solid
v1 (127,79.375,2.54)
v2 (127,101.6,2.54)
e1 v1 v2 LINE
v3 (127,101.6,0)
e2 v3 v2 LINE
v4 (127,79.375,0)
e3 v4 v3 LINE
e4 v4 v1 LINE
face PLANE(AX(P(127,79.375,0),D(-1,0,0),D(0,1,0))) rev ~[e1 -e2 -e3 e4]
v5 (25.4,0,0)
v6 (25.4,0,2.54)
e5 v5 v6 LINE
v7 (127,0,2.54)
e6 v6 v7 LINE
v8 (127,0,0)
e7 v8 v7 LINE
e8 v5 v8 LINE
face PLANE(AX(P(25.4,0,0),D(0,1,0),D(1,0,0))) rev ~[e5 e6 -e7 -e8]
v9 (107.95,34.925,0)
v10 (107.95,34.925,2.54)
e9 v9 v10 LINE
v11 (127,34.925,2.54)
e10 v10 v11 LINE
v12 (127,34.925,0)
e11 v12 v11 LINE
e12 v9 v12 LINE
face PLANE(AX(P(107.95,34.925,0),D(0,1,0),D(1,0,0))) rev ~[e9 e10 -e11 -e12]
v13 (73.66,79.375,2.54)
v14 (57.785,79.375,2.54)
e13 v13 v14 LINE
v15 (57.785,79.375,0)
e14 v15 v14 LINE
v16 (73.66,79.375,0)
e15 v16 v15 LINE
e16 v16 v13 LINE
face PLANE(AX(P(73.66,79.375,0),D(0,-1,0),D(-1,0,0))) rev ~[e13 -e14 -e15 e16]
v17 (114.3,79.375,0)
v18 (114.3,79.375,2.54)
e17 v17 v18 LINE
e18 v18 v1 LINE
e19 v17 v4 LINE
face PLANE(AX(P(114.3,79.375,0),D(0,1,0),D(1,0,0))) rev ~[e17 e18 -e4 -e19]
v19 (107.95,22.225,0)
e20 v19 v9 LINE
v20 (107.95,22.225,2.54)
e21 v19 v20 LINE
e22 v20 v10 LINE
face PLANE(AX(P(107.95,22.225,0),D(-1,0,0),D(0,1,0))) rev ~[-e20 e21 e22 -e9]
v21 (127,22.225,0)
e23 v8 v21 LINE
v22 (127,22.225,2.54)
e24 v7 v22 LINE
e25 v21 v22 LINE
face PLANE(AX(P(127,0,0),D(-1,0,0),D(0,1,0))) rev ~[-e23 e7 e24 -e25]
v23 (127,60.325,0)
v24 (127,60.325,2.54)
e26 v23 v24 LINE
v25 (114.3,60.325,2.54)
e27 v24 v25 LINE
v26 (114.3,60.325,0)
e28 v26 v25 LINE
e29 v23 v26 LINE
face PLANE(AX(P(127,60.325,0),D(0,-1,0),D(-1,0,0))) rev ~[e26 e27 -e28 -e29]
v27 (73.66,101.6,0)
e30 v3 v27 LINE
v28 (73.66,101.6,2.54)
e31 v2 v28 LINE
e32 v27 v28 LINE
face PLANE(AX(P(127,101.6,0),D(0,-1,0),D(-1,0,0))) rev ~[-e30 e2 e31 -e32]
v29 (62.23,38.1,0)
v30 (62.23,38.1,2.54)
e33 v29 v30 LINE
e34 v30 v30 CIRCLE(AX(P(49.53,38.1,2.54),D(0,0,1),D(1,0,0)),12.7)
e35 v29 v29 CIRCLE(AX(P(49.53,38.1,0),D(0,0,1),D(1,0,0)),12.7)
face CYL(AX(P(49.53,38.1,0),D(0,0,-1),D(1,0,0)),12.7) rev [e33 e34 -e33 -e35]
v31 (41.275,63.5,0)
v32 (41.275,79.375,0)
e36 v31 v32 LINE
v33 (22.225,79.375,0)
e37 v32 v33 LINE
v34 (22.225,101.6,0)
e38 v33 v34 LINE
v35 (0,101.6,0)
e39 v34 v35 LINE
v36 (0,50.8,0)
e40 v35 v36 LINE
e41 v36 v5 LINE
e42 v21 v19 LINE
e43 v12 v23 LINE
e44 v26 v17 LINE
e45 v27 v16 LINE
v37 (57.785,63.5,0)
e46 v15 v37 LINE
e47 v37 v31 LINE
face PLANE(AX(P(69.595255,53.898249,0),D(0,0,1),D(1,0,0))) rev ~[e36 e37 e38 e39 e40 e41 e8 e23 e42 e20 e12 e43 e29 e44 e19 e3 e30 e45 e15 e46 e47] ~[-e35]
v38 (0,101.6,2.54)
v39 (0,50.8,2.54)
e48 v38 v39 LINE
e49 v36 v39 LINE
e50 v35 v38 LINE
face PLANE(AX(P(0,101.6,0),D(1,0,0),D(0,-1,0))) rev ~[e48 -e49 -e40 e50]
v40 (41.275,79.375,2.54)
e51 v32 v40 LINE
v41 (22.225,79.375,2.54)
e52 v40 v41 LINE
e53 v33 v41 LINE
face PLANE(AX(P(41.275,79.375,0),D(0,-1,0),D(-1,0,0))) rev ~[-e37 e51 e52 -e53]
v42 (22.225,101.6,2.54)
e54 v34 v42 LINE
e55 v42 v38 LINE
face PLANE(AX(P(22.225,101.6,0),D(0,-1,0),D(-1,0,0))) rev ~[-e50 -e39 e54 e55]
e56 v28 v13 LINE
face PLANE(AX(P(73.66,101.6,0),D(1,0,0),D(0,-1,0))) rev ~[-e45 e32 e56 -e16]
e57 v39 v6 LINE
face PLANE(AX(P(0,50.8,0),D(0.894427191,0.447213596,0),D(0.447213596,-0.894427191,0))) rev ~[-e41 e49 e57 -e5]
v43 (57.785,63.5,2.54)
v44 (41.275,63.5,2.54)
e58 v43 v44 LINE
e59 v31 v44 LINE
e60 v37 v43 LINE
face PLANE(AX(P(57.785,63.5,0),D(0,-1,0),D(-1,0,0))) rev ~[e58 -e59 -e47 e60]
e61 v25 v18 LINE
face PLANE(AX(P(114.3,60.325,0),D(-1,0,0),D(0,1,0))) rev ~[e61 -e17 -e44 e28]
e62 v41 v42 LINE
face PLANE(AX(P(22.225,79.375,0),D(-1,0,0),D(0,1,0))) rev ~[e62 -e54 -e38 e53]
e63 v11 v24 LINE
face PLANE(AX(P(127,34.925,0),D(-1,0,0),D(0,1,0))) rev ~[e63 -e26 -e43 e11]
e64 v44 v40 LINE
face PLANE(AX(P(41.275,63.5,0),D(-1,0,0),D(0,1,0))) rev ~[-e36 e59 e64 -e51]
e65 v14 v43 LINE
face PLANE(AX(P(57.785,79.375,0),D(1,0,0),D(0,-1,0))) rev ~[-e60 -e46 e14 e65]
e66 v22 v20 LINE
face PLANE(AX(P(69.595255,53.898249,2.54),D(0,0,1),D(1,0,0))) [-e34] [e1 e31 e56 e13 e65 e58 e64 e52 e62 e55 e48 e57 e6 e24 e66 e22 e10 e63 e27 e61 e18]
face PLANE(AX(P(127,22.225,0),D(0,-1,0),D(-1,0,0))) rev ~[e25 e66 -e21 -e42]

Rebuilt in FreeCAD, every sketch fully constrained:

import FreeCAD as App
import Part
import Sketcher

V = App.Vector
Q = App.Units.Quantity

doc = App.newDocument("Part")
body = doc.addObject("PartDesign::Body", "Body")

# Sketch on XY plane
sketch1 = body.newObject("Sketcher::SketchObject", "Sketch")
sketch1.AttachmentSupport = (doc.getObject("XY_Plane"), [""])
sketch1.MapMode = "FlatFace"
sketch1.addGeometry([
    Part.LineSegment(V(0, 51, 0), V(25, 0, 0)),  # 0
    Part.LineSegment(V(25, 0, 0), V(127, 0, 0)),  # 1
    Part.LineSegment(V(127, 0, 0), V(127, 22, 0)),  # 2
    Part.LineSegment(V(127, 22, 0), V(108, 22, 0)),  # 3
    Part.LineSegment(V(108, 22, 0), V(108, 35, 0)),  # 4
    Part.LineSegment(V(108, 35, 0), V(127, 35, 0)),  # 5
    Part.LineSegment(V(127, 35, 0), V(127, 60, 0)),  # 6
    Part.LineSegment(V(127, 60, 0), V(114, 60, 0)),  # 7
    Part.LineSegment(V(114, 60, 0), V(114, 79, 0)),  # 8
    Part.LineSegment(V(114, 79, 0), V(127, 79, 0)),  # 9
    Part.LineSegment(V(127, 79, 0), V(127, 102, 0)),  # 10
    Part.LineSegment(V(127, 102, 0), V(74, 102, 0)),  # 11
    Part.LineSegment(V(74, 102, 0), V(74, 79, 0)),  # 12
    Part.LineSegment(V(74, 79, 0), V(58, 79, 0)),  # 13
    Part.LineSegment(V(58, 79, 0), V(58, 64, 0)),  # 14
    Part.LineSegment(V(58, 64, 0), V(41, 64, 0)),  # 15
    Part.LineSegment(V(41, 64, 0), V(41, 79, 0)),  # 16
    Part.LineSegment(V(41, 79, 0), V(22, 79, 0)),  # 17
    Part.LineSegment(V(22, 79, 0), V(22, 102, 0)),  # 18
    Part.LineSegment(V(22, 102, 0), V(0, 102, 0)),  # 19
    Part.LineSegment(V(0, 102, 0), V(0, 51, 0)),  # 20
    Part.Circle(V(50, 38, 0), V(0, 0, 1), 13),  # 21
], False)
sketch1.addConstraint([
    Sketcher.Constraint("Coincident", 0, 2, 1, 1),
    Sketcher.Constraint("Coincident", 1, 2, 2, 1),
    Sketcher.Constraint("Coincident", 2, 2, 3, 1),
    Sketcher.Constraint("Coincident", 3, 2, 4, 1),
    Sketcher.Constraint("Coincident", 4, 2, 5, 1),
    Sketcher.Constraint("Coincident", 5, 2, 6, 1),
    Sketcher.Constraint("Coincident", 6, 2, 7, 1),
    Sketcher.Constraint("Coincident", 7, 2, 8, 1),
    Sketcher.Constraint("Coincident", 8, 2, 9, 1),
    Sketcher.Constraint("Coincident", 9, 2, 10, 1),
    Sketcher.Constraint("Coincident", 10, 2, 11, 1),
    Sketcher.Constraint("Coincident", 11, 2, 12, 1),
    Sketcher.Constraint("Coincident", 12, 2, 13, 1),
    Sketcher.Constraint("Coincident", 13, 2, 14, 1),
    Sketcher.Constraint("Coincident", 14, 2, 15, 1),
    Sketcher.Constraint("Coincident", 15, 2, 16, 1),
    Sketcher.Constraint("Coincident", 16, 2, 17, 1),
    Sketcher.Constraint("Coincident", 17, 2, 18, 1),
    Sketcher.Constraint("Coincident", 18, 2, 19, 1),
    Sketcher.Constraint("Coincident", 19, 2, 20, 1),
    Sketcher.Constraint("Coincident", 20, 2, 0, 1),
    Sketcher.Constraint("Horizontal", 1),
    Sketcher.Constraint("Vertical", 2),
    Sketcher.Constraint("Horizontal", 3),
    Sketcher.Constraint("Vertical", 4),
    Sketcher.Constraint("Horizontal", 5),
    Sketcher.Constraint("Vertical", 6),
    Sketcher.Constraint("Horizontal", 7),
    Sketcher.Constraint("Vertical", 8),
    Sketcher.Constraint("Horizontal", 9),
    Sketcher.Constraint("Vertical", 10),
    Sketcher.Constraint("Horizontal", 11),
    Sketcher.Constraint("Vertical", 12),
    Sketcher.Constraint("Horizontal", 13),
    Sketcher.Constraint("Vertical", 14),
    Sketcher.Constraint("Horizontal", 15),
    Sketcher.Constraint("Vertical", 16),
    Sketcher.Constraint("Horizontal", 17),
    Sketcher.Constraint("Vertical", 18),
    Sketcher.Constraint("Horizontal", 19),
    Sketcher.Constraint("Vertical", 20),
    Sketcher.Constraint("PointOnObject", 0, 2, -1),
    Sketcher.Constraint("PointOnObject", 19, 2, -2),
    Sketcher.Constraint("Horizontal", 9, 2, 12, 2),
    Sketcher.Constraint("Horizontal", 13, 2, 16, 2),
    Sketcher.Constraint("Horizontal", 11, 2, 18, 2),
    Sketcher.Constraint("Vertical", 2, 2, 5, 2),
    Sketcher.Constraint("Vertical", 6, 2, 9, 2),
    Sketcher.Constraint("Equal", 5, 17),
    Sketcher.Constraint("Equal", 19, 2),
    Sketcher.Constraint("Equal", 9, 4),
    Sketcher.Constraint("Equal", 17, 8),
    Sketcher.Constraint("Equal", 2, 10),
    Sketcher.Constraint("Equal", 13, 14),
    Sketcher.Constraint("Diameter", 21, Q("1 in")),
    Sketcher.Constraint("DistanceX", 1, 1, 1, 2, Q("4 in")),
    Sketcher.Constraint("DistanceY", 6, 1, 6, 2, Q("1 in")),
    Sketcher.Constraint("DistanceY", 20, 2, 20, 1, Q("2 in")),
    Sketcher.Constraint("DistanceX", 7, 2, 7, 1, Q("0.5 in")),
    Sketcher.Constraint("DistanceX", 11, 2, 11, 1, Q("2.1 in")),
    Sketcher.Constraint("DistanceX", -1, 1, 0, 2, Q("1 in")),
    Sketcher.Constraint("DistanceY", -1, 1, 10, 2, Q("4 in")),
    Sketcher.Constraint("DistanceY", 21, 3, 14, 2, Q("1 in")),
    Sketcher.Constraint("DistanceX", 3, 2, 3, 1, Q("0.75 in")),
    Sketcher.Constraint("DistanceX", 15, 2, 15, 1, Q("0.65 in")),
    Sketcher.Constraint("DistanceX", 21, 3, 3, 2, Q("2.3 in")),
])
pad1 = body.newObject("PartDesign::Pad", "Pad")
pad1.Profile = sketch1
pad1.Length = Q("0.1 in")

doc.recompute()
